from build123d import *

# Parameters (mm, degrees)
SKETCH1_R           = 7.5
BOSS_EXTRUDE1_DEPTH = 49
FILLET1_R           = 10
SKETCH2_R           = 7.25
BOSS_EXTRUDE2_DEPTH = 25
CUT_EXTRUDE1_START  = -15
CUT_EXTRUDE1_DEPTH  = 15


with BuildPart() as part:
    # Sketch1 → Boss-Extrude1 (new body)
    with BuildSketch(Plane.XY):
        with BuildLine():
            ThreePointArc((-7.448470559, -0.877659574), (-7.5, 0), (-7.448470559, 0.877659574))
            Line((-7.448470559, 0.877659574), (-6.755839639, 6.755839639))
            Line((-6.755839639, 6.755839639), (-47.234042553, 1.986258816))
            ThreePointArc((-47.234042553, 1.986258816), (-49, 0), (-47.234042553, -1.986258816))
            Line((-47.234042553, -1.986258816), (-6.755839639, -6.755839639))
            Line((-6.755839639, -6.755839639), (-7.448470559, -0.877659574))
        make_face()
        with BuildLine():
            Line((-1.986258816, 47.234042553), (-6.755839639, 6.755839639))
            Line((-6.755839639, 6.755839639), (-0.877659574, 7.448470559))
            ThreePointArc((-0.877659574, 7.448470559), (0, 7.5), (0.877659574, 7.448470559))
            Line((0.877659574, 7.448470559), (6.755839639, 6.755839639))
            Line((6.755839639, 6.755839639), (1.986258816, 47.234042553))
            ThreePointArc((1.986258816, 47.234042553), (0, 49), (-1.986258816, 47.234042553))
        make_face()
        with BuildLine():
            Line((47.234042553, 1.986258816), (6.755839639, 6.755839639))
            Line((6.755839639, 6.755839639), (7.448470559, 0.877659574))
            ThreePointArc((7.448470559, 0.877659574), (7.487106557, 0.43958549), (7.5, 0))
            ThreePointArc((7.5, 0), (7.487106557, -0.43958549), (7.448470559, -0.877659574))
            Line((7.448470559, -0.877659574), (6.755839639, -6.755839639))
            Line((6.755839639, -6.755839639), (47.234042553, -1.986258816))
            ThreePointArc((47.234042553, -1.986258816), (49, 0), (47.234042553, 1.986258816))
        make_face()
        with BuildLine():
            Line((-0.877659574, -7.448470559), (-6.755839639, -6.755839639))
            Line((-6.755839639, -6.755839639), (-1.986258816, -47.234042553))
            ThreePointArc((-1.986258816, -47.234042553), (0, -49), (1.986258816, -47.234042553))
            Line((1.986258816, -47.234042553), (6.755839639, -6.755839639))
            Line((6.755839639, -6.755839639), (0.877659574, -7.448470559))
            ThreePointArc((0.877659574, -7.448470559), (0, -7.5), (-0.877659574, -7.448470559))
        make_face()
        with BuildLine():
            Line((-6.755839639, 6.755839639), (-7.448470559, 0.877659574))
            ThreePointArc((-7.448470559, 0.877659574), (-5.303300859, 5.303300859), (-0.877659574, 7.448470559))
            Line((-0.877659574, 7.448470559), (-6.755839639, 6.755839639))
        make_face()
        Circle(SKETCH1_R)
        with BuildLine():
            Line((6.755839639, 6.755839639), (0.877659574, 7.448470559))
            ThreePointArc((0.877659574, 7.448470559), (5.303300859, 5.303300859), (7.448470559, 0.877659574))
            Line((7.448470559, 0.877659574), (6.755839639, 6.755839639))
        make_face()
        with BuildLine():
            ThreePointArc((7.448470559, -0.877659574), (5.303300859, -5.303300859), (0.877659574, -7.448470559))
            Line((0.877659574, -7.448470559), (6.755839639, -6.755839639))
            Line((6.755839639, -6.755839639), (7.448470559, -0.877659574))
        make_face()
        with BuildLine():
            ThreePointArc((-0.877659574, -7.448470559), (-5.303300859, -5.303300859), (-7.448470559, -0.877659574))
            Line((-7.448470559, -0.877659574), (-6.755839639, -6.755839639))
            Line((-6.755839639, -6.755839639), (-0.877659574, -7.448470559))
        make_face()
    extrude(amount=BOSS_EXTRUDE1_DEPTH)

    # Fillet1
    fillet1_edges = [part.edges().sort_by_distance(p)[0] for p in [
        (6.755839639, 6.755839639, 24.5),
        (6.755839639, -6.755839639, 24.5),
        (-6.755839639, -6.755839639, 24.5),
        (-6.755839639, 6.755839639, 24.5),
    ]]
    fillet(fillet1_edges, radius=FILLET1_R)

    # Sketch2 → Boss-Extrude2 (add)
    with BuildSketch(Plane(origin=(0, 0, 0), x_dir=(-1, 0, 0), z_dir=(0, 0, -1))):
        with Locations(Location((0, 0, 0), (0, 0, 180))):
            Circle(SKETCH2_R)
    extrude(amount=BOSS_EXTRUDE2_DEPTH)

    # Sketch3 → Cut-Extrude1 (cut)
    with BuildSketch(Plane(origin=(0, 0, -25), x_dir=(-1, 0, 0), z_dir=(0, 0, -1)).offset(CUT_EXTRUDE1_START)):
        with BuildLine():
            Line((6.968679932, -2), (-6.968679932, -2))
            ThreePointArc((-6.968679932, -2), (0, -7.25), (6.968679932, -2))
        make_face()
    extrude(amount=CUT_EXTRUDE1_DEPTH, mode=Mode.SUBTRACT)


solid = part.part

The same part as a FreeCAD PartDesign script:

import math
import FreeCAD as App
import Part
import Sketcher


def edges_at(feature, points):
    """Names of the edges that pass closest to the given points."""
    edges = feature.Shape.Edges
    near = lambda p: min(range(len(edges)), key=lambda i: edges[i].distToShape(Part.Vertex(*p))[0])
    return sorted({f"Edge{near(p) + 1}" for p in points})

doc = App.newDocument("Part")
body = doc.addObject("PartDesign::Body", "Body")

# Sketch on XY plane
sketch1 = body.newObject("Sketcher::SketchObject", "Sketch")
sketch1.AttachmentSupport = (doc.getObject("XY_Plane"), [""])
sketch1.MapMode = "FlatFace"
sketch1.addGeometry([
    Part.LineSegment(App.Vector(-47.234043, -1.986259, 0), App.Vector(-6.75584, -6.75584, 0)),  # 0
    Part.LineSegment(App.Vector(-6.75584, -6.75584, 0), App.Vector(-1.986259, -47.234043, 0)),  # 1
    Part.ArcOfCircle(Part.Circle(App.Vector(0, -47, 0), App.Vector(0, 0, 1), 2), math.radians(-173.279777), math.radians(-6.720223)),  # 2
    Part.LineSegment(App.Vector(1.986259, -47.234043, 0), App.Vector(6.75584, -6.75584, 0)),  # 3
    Part.LineSegment(App.Vector(6.75584, -6.75584, 0), App.Vector(47.234043, -1.986259, 0)),  # 4
    Part.ArcOfCircle(Part.Circle(App.Vector(47, 0, 0), App.Vector(0, 0, 1), 2), math.radians(-83.279777), math.radians(83.279777)),  # 5
    Part.LineSegment(App.Vector(47.234043, 1.986259, 0), App.Vector(6.75584, 6.75584, 0)),  # 6
    Part.LineSegment(App.Vector(6.75584, 6.75584, 0), App.Vector(1.986259, 47.234043, 0)),  # 7
    Part.ArcOfCircle(Part.Circle(App.Vector(0, 47, 0), App.Vector(0, 0, 1), 2), math.radians(6.720223), math.radians(173.279777)),  # 8
    Part.LineSegment(App.Vector(-1.986259, 47.234043, 0), App.Vector(-6.75584, 6.75584, 0)),  # 9
    Part.LineSegment(App.Vector(-6.75584, 6.75584, 0), App.Vector(-47.234043, 1.986259, 0)),  # 10
    Part.ArcOfCircle(Part.Circle(App.Vector(-47, 0, 0), App.Vector(0, 0, 1), 2), math.radians(96.720223), math.radians(263.279777)),  # 11
], False)
sketch1.addConstraint([
    Sketcher.Constraint("Coincident", 0, 2, 1, 1),
    Sketcher.Constraint("Tangent", 1, 2, 2, 1),
    Sketcher.Constraint("Tangent", 2, 2, 3, 1),
    Sketcher.Constraint("Coincident", 3, 2, 4, 1),
    Sketcher.Constraint("Tangent", 4, 2, 5, 1),
    Sketcher.Constraint("Tangent", 5, 2, 6, 1),
    Sketcher.Constraint("Coincident", 6, 2, 7, 1),
    Sketcher.Constraint("Tangent", 7, 2, 8, 1),
    Sketcher.Constraint("Tangent", 8, 2, 9, 1),
    Sketcher.Constraint("Coincident", 9, 2, 10, 1),
    Sketcher.Constraint("Tangent", 10, 2, 11, 1),
    Sketcher.Constraint("Tangent", 11, 2, 0, 1),
    Sketcher.Constraint("Equal", 2, 5),
    Sketcher.Constraint("Equal", 5, 8),
    Sketcher.Constraint("Equal", 8, 11),
    Sketcher.Constraint("Symmetric", 2, 3, 8, 3, -1, 1),
    Sketcher.Constraint("Symmetric", 5, 3, 11, 3, -1, 1),
    Sketcher.Constraint("Symmetric", 0, 2, 6, 2, -1, 1),
    Sketcher.Constraint("Symmetric", 3, 2, 9, 2, -1, 1),
    Sketcher.Constraint("Symmetric", 1, 2, 2, 2, -2),
    Sketcher.Constraint("Symmetric", 5, 2, 10, 2, -2),
    Sketcher.Constraint("Perpendicular", 0, 3),
    Sketcher.Constraint("Equal", 0, 1),
    Sketcher.Constraint("Radius", 2, 2.0),
    Sketcher.Constraint("DistanceY", 2, 3, -1, 1, 47.0),
    Sketcher.Constraint("DistanceX", 0, 2, 2, 2, 8.742098),
])
pad1 = body.newObject("PartDesign::Pad", "Pad")
pad1.Profile = sketch1
pad1.Length = 49
doc.recompute()

fillet = body.newObject("PartDesign::Fillet", "Fillet")
fillet.Base = (pad1, edges_at(pad1, [
    (6.756, 6.756, 24.5),
    (6.756, -6.756, 24.5),
    (-6.756, -6.756, 24.5),
    (-6.756, 6.756, 24.5),
]))
fillet.Radius = 10

# Sketch on XY plane
sketch2 = body.newObject("Sketcher::SketchObject", "Sketch001")
sketch2.AttachmentSupport = (doc.getObject("XY_Plane"), [""])
sketch2.MapMode = "FlatFace"
sketch2.addGeometry(Part.Circle(App.Vector(0, 0, 0), App.Vector(0, 0, 1), 7.25), False)
sketch2.addConstraint([
    Sketcher.Constraint("Coincident", 0, 3, -1, 1),
    Sketcher.Constraint("Diameter", 0, 14.5),
])
pad2 = body.newObject("PartDesign::Pad", "Pad001")
pad2.Profile = sketch2
pad2.Length = 25
pad2.Reversed = True

# Sketch on XY plane
sketch3 = body.newObject("Sketcher::SketchObject", "Sketch002")
sketch3.AttachmentSupport = (doc.getObject("XY_Plane"), [""])
sketch3.MapMode = "FlatFace"
sketch3.AttachmentOffset = App.Placement(App.Vector(0, 0, -10), App.Rotation())
sketch3.addGeometry([
    Part.LineSegment(App.Vector(-6.96868, -2, 0), App.Vector(6.96868, -2, 0)),
    Part.ArcOfCircle(Part.Circle(App.Vector(0, 0, 0), App.Vector(0, 0, 1), 7.25), math.radians(-163.986606), math.radians(-16.013394)),
], False)
sketch3.addConstraint([
    Sketcher.Constraint("Coincident", 0, 1, 1, 1),
    Sketcher.Constraint("Coincident", 1, 2, 0, 2),
    Sketcher.Constraint("Horizontal", 0),
    Sketcher.Constraint("Coincident", 1, 3, -1, 1),
    Sketcher.Constraint("Radius", 1, 7.25),
    Sketcher.Constraint("DistanceY", 0, 1, -1, 1, 2.0),
])
pocket1 = body.newObject("PartDesign::Pocket", "Pocket")
pocket1.Profile = sketch3
pocket1.Length = 15

doc.recompute()
